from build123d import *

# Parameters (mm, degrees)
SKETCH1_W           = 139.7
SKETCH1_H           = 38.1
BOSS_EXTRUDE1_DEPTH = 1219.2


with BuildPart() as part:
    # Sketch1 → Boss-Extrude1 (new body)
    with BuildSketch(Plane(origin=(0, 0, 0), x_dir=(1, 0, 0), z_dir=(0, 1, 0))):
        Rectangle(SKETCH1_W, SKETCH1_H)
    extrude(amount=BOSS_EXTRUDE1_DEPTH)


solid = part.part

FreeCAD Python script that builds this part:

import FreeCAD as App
import Part
import Sketcher

V = App.Vector
Q = App.Units.Quantity


def add_polygon(sketch, points):
    """Adds a closed chain of lines whose ends are joined by coincident constraints."""
    first, n = sketch.GeometryCount, len(points)
    for a, b in zip(points, points[1:] + points[:1]):
        sketch.addGeometry(Part.LineSegment(App.Vector(*a, 0), App.Vector(*b, 0)), False)
    for i in range(n):
        sketch.addConstraint(Sketcher.Constraint("Coincident", first + i, 2, first + (i + 1) % n, 1))

doc = App.newDocument("Part")
params = doc.addObject("Spreadsheet::Sheet", "Params")
for row, (alias, value) in enumerate([
    ("sketch1_width", "5.5 in"),
    ("sketch1_height", "1.5 in"),
    ("pad1_length", "48 in"),
], start=1):
    params.set(f"A{row}", alias)
    params.set(f"B{row}", "=" + value)
    params.setAlias(f"B{row}", alias)

body = doc.addObject("PartDesign::Body", "Body")

# Sketch on XZ plane
sketch1 = body.newObject("Sketcher::SketchObject", "Sketch")
sketch1.AttachmentSupport = (doc.getObject("XZ_Plane"), [""])
sketch1.MapMode = "FlatFace"
add_polygon(sketch1, [(-70, -19), (-70, 19), (70, 19), (70, -19)])  # lines 0-3
sketch1.addConstraint([
    Sketcher.Constraint("Vertical", 0),
    Sketcher.Constraint("Horizontal", 1),
    Sketcher.Constraint("Vertical", 2),
    Sketcher.Constraint("Horizontal", 3),
    Sketcher.Constraint("Symmetric", 0, 2, 2, 2, -1, 1),
    Sketcher.Constraint("DistanceX", 1, 1, 1, 2, Q("5.5 in")),
    Sketcher.Constraint("DistanceY", 0, 1, 0, 2, Q("1.5 in")),
])
sketch1.setExpression("Constraints[9]", "Params.sketch1_width")
sketch1.setExpression("Constraints[10]", "Params.sketch1_height")
pad1 = body.newObject("PartDesign::Pad", "Pad")
pad1.Profile = sketch1
pad1.setExpression("Length", "Params.pad1_length")
pad1.Reversed = True

doc.recompute()
